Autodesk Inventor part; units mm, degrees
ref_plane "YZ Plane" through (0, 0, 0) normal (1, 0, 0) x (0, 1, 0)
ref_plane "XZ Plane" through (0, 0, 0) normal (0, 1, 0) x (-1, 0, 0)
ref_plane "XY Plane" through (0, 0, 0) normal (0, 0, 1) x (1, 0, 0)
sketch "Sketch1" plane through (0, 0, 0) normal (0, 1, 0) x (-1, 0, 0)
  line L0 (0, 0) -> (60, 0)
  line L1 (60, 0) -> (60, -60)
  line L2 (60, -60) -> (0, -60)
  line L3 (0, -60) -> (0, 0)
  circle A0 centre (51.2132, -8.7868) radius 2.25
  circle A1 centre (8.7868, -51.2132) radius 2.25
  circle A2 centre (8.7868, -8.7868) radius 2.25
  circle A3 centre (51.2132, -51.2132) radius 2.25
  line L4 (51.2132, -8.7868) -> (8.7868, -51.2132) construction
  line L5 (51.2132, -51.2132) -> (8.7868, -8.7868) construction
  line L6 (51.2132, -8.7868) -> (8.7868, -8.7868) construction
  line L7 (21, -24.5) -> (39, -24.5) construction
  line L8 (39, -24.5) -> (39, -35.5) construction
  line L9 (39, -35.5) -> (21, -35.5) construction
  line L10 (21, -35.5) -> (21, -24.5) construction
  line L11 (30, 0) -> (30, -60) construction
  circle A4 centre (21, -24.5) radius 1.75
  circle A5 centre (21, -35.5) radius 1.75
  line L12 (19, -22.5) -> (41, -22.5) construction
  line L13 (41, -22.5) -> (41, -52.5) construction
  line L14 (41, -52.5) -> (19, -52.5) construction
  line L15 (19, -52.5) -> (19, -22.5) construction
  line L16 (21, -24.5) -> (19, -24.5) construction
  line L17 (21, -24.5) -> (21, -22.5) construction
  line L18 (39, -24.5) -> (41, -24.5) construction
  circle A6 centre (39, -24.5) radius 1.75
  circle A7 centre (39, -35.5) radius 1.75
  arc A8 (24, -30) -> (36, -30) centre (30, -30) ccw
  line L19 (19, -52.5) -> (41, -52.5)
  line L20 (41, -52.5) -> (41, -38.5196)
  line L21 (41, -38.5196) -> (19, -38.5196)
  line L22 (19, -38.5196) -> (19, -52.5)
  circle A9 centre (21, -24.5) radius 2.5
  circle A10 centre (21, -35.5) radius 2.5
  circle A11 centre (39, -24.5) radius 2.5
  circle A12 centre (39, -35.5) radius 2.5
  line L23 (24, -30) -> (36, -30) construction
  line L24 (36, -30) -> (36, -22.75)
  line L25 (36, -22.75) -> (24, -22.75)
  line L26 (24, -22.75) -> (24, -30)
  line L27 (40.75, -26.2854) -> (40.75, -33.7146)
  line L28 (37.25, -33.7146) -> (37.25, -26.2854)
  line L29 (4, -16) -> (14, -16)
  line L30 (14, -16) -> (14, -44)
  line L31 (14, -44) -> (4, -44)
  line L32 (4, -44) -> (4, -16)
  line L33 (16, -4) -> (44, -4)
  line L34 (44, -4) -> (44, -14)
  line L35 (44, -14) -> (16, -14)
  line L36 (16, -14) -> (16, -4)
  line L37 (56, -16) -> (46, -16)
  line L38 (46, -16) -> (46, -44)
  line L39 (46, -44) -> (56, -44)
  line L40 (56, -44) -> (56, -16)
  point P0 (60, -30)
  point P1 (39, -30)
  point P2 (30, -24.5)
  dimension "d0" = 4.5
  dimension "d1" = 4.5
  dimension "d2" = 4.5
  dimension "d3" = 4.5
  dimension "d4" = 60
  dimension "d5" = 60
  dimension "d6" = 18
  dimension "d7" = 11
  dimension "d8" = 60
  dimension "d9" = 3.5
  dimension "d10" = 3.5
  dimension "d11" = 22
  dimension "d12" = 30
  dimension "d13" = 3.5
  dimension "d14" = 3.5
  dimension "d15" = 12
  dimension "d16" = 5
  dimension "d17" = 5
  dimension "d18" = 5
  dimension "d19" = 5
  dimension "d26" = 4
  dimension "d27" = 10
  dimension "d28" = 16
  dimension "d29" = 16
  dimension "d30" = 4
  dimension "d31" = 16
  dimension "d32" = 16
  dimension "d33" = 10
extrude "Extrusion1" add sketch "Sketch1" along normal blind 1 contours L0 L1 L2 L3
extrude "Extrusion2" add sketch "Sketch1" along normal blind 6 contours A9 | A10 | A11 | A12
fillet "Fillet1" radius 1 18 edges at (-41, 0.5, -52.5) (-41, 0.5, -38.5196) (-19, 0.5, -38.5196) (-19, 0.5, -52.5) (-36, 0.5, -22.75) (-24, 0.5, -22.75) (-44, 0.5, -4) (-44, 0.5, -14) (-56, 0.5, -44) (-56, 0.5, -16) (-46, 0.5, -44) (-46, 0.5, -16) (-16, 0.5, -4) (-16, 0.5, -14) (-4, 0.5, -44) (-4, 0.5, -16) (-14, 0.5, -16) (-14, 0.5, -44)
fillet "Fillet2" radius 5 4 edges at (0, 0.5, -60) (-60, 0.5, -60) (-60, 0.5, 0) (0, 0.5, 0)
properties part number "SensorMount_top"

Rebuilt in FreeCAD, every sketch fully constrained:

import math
import FreeCAD as App
import Part
import Sketcher
from FreeCAD import Vector
Q = App.Units.Quantity


def edges_at(feature, points):
    """Names of the edges that pass closest to the given points."""
    edges = feature.Shape.Edges
    near = lambda p: min(range(len(edges)), key=lambda i: edges[i].distToShape(Part.Vertex(*p))[0])
    return sorted({f"Edge{near(p) + 1}" for p in points})


def add_polygon(sketch, points):
    """Adds a closed chain of lines whose ends are joined by coincident constraints."""
    first, n = sketch.GeometryCount, len(points)
    for a, b in zip(points, points[1:] + points[:1]):
        sketch.addGeometry(Part.LineSegment(App.Vector(*a, 0), App.Vector(*b, 0)), False)
    for i in range(n):
        sketch.addConstraint(Sketcher.Constraint("Coincident", first + i, 2, first + (i + 1) % n, 1))

doc = App.newDocument("Part")
body = doc.addObject("PartDesign::Body", "Body")

sketch1 = body.newObject("Sketcher::SketchObject", "Sketch")
sketch1.AttachmentSupport = (doc.getObject("XZ_Plane"), [""])
sketch1.MapMode = "FlatFace"
add_polygon(sketch1, [(-60, 0), (0, 0), (0, -60), (-60, -60)])
sketch1.addGeometry(Part.Circle(Vector(-8.8, -51.2, 0), Vector(0, 0, 1), 2.2), False)
sketch1.addGeometry(Part.Circle(Vector(-21, -35.5, 0), Vector(0, 0, 1), 2.5), False)
add_polygon(sketch1, [(-41, -52.5), (-19, -52.5), (-19, -38.5), (-41, -38.5)])
sketch1.addGeometry(Part.Circle(Vector(-51.2, -51.2, 0), Vector(0, 0, 1), 2.2), False)
add_polygon(sketch1, [(-4, -44), (-4, -16), (-14, -16), (-14, -44)])
sketch1.addGeometry(Part.Circle(Vector(-21, -24.5, 0), Vector(0, 0, 1), 2.5), False)
sketch1.addGeometry(Part.Circle(Vector(-8.8, -8.8, 0), Vector(0, 0, 1), 2.2), False)
sketch1.addGeometry(Part.ArcOfCircle(Part.Circle(Vector(-30, -30, 0), Vector(0, 0, 1), 6), math.radians(180), math.radians(360)), False)
sketch1.addGeometry(Part.LineSegment(Vector(-24, -30, 0), Vector(-24, -22.8, 0)), False)
sketch1.addGeometry(Part.LineSegment(Vector(-24, -22.8, 0), Vector(-36, -22.8, 0)), False)
sketch1.addGeometry(Part.LineSegment(Vector(-36, -22.8, 0), Vector(-36, -30, 0)), False)
sketch1.addGeometry(Part.ArcOfCircle(Part.Circle(Vector(-39, -24.5, 0), Vector(0, 0, 1), 2.5), math.radians(-46), math.radians(226)), False)
sketch1.addGeometry(Part.LineSegment(Vector(-40.8, -26.3, 0), Vector(-40.8, -33.7, 0)), False)
sketch1.addGeometry(Part.ArcOfCircle(Part.Circle(Vector(-39, -35.5, 0), Vector(0, 0, 1), 2.5), math.radians(134), math.radians(406)), False)
sketch1.addGeometry(Part.LineSegment(Vector(-37.2, -33.7, 0), Vector(-37.2, -26.3, 0)), False)
add_polygon(sketch1, [(-46, -16), (-56, -16), (-56, -44), (-46, -44)])
add_polygon(sketch1, [(-16, -14), (-16, -4), (-44, -4), (-44, -14)])
sketch1.addGeometry(Part.Circle(Vector(-51.2, -8.8, 0), Vector(0, 0, 1), 2.2), False)
sketch1.addConstraint([
    Sketcher.Constraint("Tangent", 17, 2, 18, 1),
    Sketcher.Constraint("Coincident", 18, 2, 19, 1),
    Sketcher.Constraint("Coincident", 19, 2, 20, 1),
    Sketcher.Constraint("Tangent", 20, 2, 17, 1),
    Sketcher.Constraint("Coincident", 21, 2, 22, 1),
    Sketcher.Constraint("Coincident", 22, 2, 23, 1),
    Sketcher.Constraint("Coincident", 23, 2, 24, 1),
    Sketcher.Constraint("Coincident", 24, 2, 21, 1),
    Sketcher.Constraint("Horizontal", 0),
    Sketcher.Constraint("Vertical", 1),
    Sketcher.Constraint("Horizontal", 2),
    Sketcher.Constraint("Vertical", 3),
    Sketcher.Constraint("Horizontal", 6),
    Sketcher.Constraint("Vertical", 7),
    Sketcher.Constraint("Horizontal", 8),
    Sketcher.Constraint("Vertical", 9),
    Sketcher.Constraint("Vertical", 11),
    Sketcher.Constraint("Horizontal", 12),
    Sketcher.Constraint("Vertical", 13),
    Sketcher.Constraint("Horizontal", 14),
    Sketcher.Constraint("Vertical", 18),
    Sketcher.Constraint("Horizontal", 19),
    Sketcher.Constraint("Vertical", 20),
    Sketcher.Constraint("Vertical", 22),
    Sketcher.Constraint("Vertical", 24),
    Sketcher.Constraint("Horizontal", 25),
    Sketcher.Constraint("Vertical", 26),
    Sketcher.Constraint("Horizontal", 27),
    Sketcher.Constraint("Vertical", 28),
    Sketcher.Constraint("Vertical", 29),
    Sketcher.Constraint("Horizontal", 30),
    Sketcher.Constraint("Vertical", 31),
    Sketcher.Constraint("Horizontal", 32),
    Sketcher.Constraint("Coincident", 0, 2, -1, 1),
    Sketcher.Constraint("Equal", 4, 10),
    Sketcher.Constraint("Equal", 5, 15),
    Sketcher.Constraint("Equal", 10, 16),
    Sketcher.Constraint("Equal", 15, 21),
    Sketcher.Constraint("Equal", 21, 23),
    Sketcher.Constraint("Equal", 16, 33),
    Sketcher.Constraint("Horizontal", 4, 3, 10, 3),
    Sketcher.Constraint("Horizontal", 15, 3, 21, 3),
    Sketcher.Constraint("Horizontal", 5, 3, 23, 3),
    Sketcher.Constraint("Horizontal", 16, 3, 33, 3),
    Sketcher.Constraint("Horizontal", 22, 2, 23, 2),
    Sketcher.Constraint("Horizontal", 21, 2, 24, 2),
    Sketcher.Constraint("Horizontal", 12, 2, 25, 2),
    Sketcher.Constraint("Horizontal", 14, 2, 26, 2),
    Sketcher.Constraint("Vertical", 5, 3, 15, 3),
    Sketcher.Constraint("Vertical", 4, 3, 16, 3),
    Sketcher.Constraint("Vertical", 10, 3, 33, 3),
    Sketcher.Constraint("Equal", 14, 25),
    Sketcher.Constraint("Equal", 2, 1),
    Sketcher.Constraint("Equal", 32, 11),
    Sketcher.Constraint("Equal", 27, 29),
    Sketcher.Constraint("Diameter", 5, Q("5 mm")),
    Sketcher.Constraint("Radius", 17, Q("6 mm")),
    Sketcher.Constraint("Diameter", 4, Q("4.5 mm")),
    Sketcher.Constraint("DistanceX", 0, 1, 0, 2, Q("60 mm")),
    Sketcher.Constraint("DistanceX", 6, 1, 6, 2, Q("22 mm")),
    Sketcher.Constraint("DistanceX", 12, 2, 12, 1, Q("10 mm")),
    Sketcher.Constraint("DistanceX", 17, 3, -1, 1, Q("30 mm")),
    Sketcher.Constraint("DistanceY", 17, 3, -1, 1, Q("30 mm")),
    Sketcher.Constraint("DistanceX", 11, 2, -1, 1, Q("4 mm")),
    Sketcher.Constraint("DistanceY", 11, 2, -1, 1, Q("16 mm")),
    Sketcher.Constraint("DistanceX", 29, 2, -1, 1, Q("16 mm")),
    Sketcher.Constraint("DistanceY", 29, 2, -1, 1, Q("4 mm")),
    Sketcher.Constraint("DistanceY", 5, 3, 15, 3, Q("11 mm")),
    Sketcher.Constraint("DistanceX", 21, 3, 15, 3, Q("18 mm")),
    Sketcher.Constraint("DistanceX", 17, 3, 6, 2, Q("11 mm")),
    Sketcher.Constraint("DistanceY", 1, 2, 14, 2, Q("16 mm")),
    Sketcher.Constraint("DistanceX", 3, 2, 25, 2, Q("4 mm")),
    Sketcher.Constraint("DistanceX", 31, 2, 21, 3, Q("5 mm")),
    Sketcher.Constraint("DistanceX", 22, 2, 23, 2, Q("3.5 mm")),
    Sketcher.Constraint("DistanceY", 6, 2, 5, 3, Q("17 mm")),
    Sketcher.Constraint("DistanceY", 18, 1, 18, 2, Q("7.25 mm")),
    Sketcher.Constraint("DistanceY", 5, 3, -1, 1, Q("35.5 mm")),
    Sketcher.Constraint("DistanceY", 7, 1, 7, 2, Q("13.9804 mm")),
    Sketcher.Constraint("DistanceX", 4, 3, -1, 1, Q("8.7868 mm")),
    Sketcher.Constraint("DistanceY", 4, 3, -1, 1, Q("51.2132 mm")),
    Sketcher.Constraint("DistanceX", 10, 3, -1, 1, Q("51.2132 mm")),
    Sketcher.Constraint("DistanceY", 16, 3, -1, 1, Q("8.7868 mm")),
])
pad1 = body.newObject("PartDesign::Pad", "Pad")
pad1.Profile = sketch1
pad1.Length = 1
pad1.Reversed = True

sketch2 = body.newObject("Sketcher::SketchObject", "Sketch001")
sketch2.AttachmentSupport = (doc.getObject("XZ_Plane"), [""])
sketch2.MapMode = "FlatFace"
sketch2.addGeometry([
    Part.Circle(Vector(-21, -24.5, 0), Vector(0, 0, 1), 2.5),
    Part.Circle(Vector(-21, -24.5, 0), Vector(0, 0, 1), 1.8),
    Part.Circle(Vector(-21, -35.5, 0), Vector(0, 0, 1), 2.5),
    Part.Circle(Vector(-21, -35.5, 0), Vector(0, 0, 1), 1.8),
    Part.Circle(Vector(-39, -24.5, 0), Vector(0, 0, 1), 2.5),
    Part.Circle(Vector(-39, -24.5, 0), Vector(0, 0, 1), 1.8),
    Part.Circle(Vector(-39, -35.5, 0), Vector(0, 0, 1), 2.5),
    Part.Circle(Vector(-39, -35.5, 0), Vector(0, 0, 1), 1.8),
], False)
sketch2.addConstraint([
    Sketcher.Constraint("Coincident", 1, 3, 0, 3),
    Sketcher.Constraint("Coincident", 3, 3, 2, 3),
    Sketcher.Constraint("Coincident", 5, 3, 4, 3),
    Sketcher.Constraint("Coincident", 7, 3, 6, 3),
    Sketcher.Constraint("Equal", 0, 2),
    Sketcher.Constraint("Equal", 1, 3),
    Sketcher.Constraint("Equal", 2, 4),
    Sketcher.Constraint("Equal", 3, 5),
    Sketcher.Constraint("Equal", 4, 6),
    Sketcher.Constraint("Equal", 5, 7),
    Sketcher.Constraint("Horizontal", 1, 3, 4, 3),
    Sketcher.Constraint("Horizontal", 3, 3, 6, 3),
    Sketcher.Constraint("Vertical", 1, 3, 2, 3),
    Sketcher.Constraint("Vertical", 5, 3, 6, 3),
    Sketcher.Constraint("Diameter", 0, Q("5 mm")),
    Sketcher.Constraint("Diameter", 1, Q("3.5 mm")),
    Sketcher.Constraint("DistanceY", 2, 3, 0, 3, Q("11 mm")),
    Sketcher.Constraint("DistanceX", 4, 3, 0, 3, Q("18 mm")),
    Sketcher.Constraint("DistanceX", 0, 3, -1, 1, Q("21 mm")),
    Sketcher.Constraint("DistanceY", 0, 3, -1, 1, Q("24.5 mm")),
])
pad2 = body.newObject("PartDesign::Pad", "Pad001")
pad2.Profile = sketch2
pad2.Length = 6
pad2.Reversed = True
doc.recompute()

fillet = body.newObject("PartDesign::Fillet", "Fillet")
fillet.Base = (pad2, edges_at(pad2, [
    (-41, 0.5, -52.5),
    (-41, 0.5, -38.52),
    (-19, 0.5, -38.52),
    (-19, 0.5, -52.5),
    (-36, 0.5, -22.75),
    (-24, 0.5, -22.75),
    (-44, 0.5, -4),
    (-44, 0.5, -14),
    (-56, 0.5, -44),
    (-56, 0.5, -16),
    (-46, 0.5, -44),
    (-46, 0.5, -16),
    (-16, 0.5, -4),
    (-16, 0.5, -14),
    (-4, 0.5, -44),
    (-4, 0.5, -16),
    (-14, 0.5, -16),
    (-14, 0.5, -44),
]))
fillet.Radius = 1
doc.recompute()

fillet2 = body.newObject("PartDesign::Fillet", "Fillet001")
fillet2.Base = (fillet, edges_at(fillet, [
    (0, 0.5, -60),
    (-60, 0.5, -60),
    (-60, 0.5, 0),
    (0, 0.5, 0),
]))
fillet2.Radius = 5

doc.recompute()
